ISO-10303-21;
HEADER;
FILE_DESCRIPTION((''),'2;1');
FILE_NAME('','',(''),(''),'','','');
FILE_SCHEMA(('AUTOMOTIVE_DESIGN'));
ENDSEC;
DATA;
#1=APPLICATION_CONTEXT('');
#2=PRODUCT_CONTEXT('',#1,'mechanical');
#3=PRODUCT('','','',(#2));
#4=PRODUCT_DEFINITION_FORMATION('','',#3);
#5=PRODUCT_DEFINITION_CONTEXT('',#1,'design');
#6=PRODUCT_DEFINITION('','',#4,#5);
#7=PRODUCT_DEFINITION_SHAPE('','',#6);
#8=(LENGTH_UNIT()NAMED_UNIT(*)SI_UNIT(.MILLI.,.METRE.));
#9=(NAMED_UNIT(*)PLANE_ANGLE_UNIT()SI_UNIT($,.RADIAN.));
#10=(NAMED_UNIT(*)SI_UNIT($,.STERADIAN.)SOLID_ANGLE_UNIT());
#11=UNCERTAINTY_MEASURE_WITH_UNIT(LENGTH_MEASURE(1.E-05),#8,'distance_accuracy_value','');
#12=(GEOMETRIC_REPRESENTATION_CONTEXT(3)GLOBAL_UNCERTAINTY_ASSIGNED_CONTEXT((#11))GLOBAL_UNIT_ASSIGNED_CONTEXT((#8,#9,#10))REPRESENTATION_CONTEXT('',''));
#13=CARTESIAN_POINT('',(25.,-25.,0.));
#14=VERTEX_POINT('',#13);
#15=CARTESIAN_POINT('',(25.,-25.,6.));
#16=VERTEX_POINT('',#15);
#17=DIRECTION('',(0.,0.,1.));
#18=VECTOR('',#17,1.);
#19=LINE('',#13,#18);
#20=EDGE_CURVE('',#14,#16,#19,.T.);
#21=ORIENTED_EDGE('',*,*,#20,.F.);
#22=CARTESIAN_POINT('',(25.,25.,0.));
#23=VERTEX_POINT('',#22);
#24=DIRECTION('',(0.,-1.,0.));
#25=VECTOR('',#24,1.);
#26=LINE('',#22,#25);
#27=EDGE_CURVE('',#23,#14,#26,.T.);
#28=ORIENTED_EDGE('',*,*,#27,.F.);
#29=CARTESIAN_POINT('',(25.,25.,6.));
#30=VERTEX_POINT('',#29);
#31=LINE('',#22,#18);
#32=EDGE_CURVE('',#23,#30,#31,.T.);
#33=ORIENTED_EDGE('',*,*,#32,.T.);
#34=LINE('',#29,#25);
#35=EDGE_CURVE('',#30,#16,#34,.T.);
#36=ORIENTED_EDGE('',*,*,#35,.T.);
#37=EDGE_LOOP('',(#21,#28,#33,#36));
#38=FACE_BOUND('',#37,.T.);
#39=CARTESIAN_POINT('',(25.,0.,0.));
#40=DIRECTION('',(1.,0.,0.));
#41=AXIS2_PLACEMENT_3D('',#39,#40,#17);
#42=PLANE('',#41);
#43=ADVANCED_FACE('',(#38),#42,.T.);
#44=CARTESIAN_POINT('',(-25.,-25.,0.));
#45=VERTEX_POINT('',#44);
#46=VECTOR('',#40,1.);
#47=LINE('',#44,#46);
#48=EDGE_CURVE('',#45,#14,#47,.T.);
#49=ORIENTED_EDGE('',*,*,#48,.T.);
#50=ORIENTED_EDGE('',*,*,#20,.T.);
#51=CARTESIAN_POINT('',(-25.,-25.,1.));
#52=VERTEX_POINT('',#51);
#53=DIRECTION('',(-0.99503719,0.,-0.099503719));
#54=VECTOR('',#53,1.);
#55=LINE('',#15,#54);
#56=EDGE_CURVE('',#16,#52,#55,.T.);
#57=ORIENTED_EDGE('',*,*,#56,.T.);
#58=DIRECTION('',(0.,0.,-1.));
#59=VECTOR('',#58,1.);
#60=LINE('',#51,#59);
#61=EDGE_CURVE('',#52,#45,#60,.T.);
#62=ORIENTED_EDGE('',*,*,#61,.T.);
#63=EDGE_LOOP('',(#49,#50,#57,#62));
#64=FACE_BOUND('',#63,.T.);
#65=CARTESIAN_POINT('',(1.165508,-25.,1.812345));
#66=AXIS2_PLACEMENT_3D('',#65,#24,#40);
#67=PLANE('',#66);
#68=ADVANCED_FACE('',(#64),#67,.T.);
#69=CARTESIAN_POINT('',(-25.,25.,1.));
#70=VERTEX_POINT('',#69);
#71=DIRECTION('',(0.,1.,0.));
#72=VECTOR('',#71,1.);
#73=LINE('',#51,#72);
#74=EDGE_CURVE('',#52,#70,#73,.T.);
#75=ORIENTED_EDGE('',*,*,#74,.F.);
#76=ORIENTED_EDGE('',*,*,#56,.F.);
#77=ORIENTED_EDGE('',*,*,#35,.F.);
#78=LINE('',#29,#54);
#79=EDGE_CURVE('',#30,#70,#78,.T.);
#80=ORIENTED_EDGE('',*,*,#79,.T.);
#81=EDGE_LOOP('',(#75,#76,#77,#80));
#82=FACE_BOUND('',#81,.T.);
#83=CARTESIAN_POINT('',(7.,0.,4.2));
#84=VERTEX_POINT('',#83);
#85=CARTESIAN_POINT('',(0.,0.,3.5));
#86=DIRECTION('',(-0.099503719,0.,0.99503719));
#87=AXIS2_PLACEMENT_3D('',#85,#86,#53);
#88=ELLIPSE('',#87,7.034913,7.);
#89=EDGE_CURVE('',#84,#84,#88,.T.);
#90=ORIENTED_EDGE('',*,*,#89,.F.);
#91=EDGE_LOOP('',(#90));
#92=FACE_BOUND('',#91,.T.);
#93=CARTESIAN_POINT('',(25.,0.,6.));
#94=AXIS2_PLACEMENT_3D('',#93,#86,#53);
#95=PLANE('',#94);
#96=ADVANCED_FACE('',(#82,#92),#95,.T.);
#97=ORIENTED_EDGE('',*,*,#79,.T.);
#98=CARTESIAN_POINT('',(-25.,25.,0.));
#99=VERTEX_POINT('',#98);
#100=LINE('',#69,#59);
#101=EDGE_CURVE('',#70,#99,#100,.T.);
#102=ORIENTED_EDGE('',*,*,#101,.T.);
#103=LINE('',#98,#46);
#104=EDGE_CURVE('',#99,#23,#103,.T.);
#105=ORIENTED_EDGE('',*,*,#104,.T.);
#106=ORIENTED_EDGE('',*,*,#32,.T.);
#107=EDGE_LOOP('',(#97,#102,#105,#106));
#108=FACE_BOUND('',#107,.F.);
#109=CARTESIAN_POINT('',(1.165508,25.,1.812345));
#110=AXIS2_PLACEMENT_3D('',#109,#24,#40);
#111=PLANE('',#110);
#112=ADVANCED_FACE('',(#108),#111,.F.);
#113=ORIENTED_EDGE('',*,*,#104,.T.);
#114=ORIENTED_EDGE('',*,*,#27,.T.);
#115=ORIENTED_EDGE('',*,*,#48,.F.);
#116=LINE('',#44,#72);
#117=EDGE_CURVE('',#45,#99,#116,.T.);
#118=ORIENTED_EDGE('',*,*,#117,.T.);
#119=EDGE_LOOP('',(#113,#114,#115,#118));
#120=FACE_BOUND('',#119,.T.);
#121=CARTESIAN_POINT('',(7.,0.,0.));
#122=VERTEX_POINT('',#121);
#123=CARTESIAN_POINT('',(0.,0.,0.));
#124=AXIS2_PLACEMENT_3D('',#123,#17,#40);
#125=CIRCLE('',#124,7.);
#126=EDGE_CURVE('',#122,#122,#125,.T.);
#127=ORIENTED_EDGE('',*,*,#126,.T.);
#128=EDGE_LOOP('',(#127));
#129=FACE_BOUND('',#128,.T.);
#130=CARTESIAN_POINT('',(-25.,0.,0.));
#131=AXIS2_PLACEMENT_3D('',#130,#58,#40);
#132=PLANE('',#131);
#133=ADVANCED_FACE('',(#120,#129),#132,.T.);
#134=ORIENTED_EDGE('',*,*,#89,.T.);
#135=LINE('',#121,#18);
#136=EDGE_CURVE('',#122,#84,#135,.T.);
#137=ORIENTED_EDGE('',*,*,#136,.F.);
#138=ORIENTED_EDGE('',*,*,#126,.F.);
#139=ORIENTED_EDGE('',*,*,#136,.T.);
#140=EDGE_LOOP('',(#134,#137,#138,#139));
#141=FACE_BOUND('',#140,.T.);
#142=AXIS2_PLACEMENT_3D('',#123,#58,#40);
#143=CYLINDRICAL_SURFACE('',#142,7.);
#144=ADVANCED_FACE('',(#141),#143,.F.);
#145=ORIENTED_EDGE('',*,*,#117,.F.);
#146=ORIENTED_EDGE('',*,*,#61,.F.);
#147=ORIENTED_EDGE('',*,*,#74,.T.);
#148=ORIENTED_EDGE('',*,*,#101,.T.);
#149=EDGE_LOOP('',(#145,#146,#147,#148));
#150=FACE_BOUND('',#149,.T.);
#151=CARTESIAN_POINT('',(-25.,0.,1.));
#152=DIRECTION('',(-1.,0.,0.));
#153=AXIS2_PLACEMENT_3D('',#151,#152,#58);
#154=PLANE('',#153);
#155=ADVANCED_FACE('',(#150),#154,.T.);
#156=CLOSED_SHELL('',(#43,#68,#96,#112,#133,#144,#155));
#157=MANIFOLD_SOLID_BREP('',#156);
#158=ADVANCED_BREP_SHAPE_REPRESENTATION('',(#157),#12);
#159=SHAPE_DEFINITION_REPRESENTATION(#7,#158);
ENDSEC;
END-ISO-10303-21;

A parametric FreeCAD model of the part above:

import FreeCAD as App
import Part
import Sketcher
Q = App.Units.Quantity

doc = App.newDocument("Part")
body = doc.addObject("PartDesign::Body", "Body")

# Sketch on XZ plane
sketch1 = doc.addObject("Sketcher::SketchObject", "Sketch")
body.addObject(sketch1)
sketch1.AttachmentSupport = (doc.XZ_Plane, [""])
sketch1.MapMode = "FlatFace"
sketch1.addGeometry(Part.LineSegment(App.Vector(-25, 0, 0), App.Vector(25, 0, 0)), False)
sketch1.addGeometry(Part.LineSegment(App.Vector(25, 0, 0), App.Vector(25, 6, 0)), False)
sketch1.addGeometry(Part.LineSegment(App.Vector(25, 6, 0), App.Vector(-25, 1, 0)), False)
sketch1.addGeometry(Part.LineSegment(App.Vector(-25, 1, 0), App.Vector(-25, 0, 0)), False)
sketch1.addConstraint(Sketcher.Constraint("Coincident", 0, 2, 1, 1))
sketch1.addConstraint(Sketcher.Constraint("Coincident", 1, 2, 2, 1))
sketch1.addConstraint(Sketcher.Constraint("Coincident", 2, 2, 3, 1))
sketch1.addConstraint(Sketcher.Constraint("Coincident", 3, 2, 0, 1))
sketch1.addConstraint(Sketcher.Constraint("Horizontal", 0))
sketch1.addConstraint(Sketcher.Constraint("Vertical", 1))
sketch1.addConstraint(Sketcher.Constraint("Vertical", 3))
sketch1.addConstraint(Sketcher.Constraint("Symmetric", 0, 2, 3, 2, -1, 1))
sketch1.addConstraint(Sketcher.Constraint("DistanceX", 0, 1, 0, 2, Q("50 mm")))
sketch1.addConstraint(Sketcher.Constraint("DistanceY", 1, 1, 1, 2, Q("6 mm")))
sketch1.addConstraint(Sketcher.Constraint("DistanceY", 3, 2, 3, 1, Q("1 mm")))
pad1 = doc.addObject("PartDesign::Pad", "Pad")
body.addObject(pad1)
pad1.Profile = sketch1
pad1.Type = "TwoLengths"
pad1.Length = 25
pad1.Length2 = 25

# Sketch on XY plane
sketch2 = doc.addObject("Sketcher::SketchObject", "Sketch001")
body.addObject(sketch2)
sketch2.AttachmentSupport = (doc.XY_Plane, [""])
sketch2.MapMode = "FlatFace"
sketch2.addGeometry(Part.Circle(App.Vector(0, 0, 0), App.Vector(0, 0, 1), 7), False)
sketch2.addConstraint(Sketcher.Constraint("Coincident", 0, 3, -1, 1))
sketch2.addConstraint(Sketcher.Constraint("Diameter", 0, Q("14 mm")))
pocket1 = doc.addObject("PartDesign::Pocket", "Pocket")
body.addObject(pocket1)
pocket1.Profile = sketch2
pocket1.Type = "ThroughAll"
pocket1.Midplane = True

doc.recompute()
